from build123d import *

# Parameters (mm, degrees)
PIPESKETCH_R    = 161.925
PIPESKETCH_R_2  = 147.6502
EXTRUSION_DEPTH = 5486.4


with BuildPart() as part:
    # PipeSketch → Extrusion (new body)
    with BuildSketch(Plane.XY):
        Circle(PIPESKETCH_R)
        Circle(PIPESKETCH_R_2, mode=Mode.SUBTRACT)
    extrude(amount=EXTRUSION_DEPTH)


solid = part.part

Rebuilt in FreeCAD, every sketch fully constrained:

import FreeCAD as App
import Part
import Sketcher

V = App.Vector
Q = App.Units.Quantity

doc = App.newDocument("Part")
body = doc.addObject("PartDesign::Body", "Body")

# Sketch on XY plane
sketch1 = body.newObject("Sketcher::SketchObject", "Sketch")
sketch1.AttachmentSupport = (doc.getObject("XY_Plane"), [""])
sketch1.MapMode = "FlatFace"
sketch1.addGeometry(Part.Circle(V(0, 0, 0), V(0, 0, 1), 162), False)
sketch1.addGeometry(Part.Circle(V(0, 0, 0), V(0, 0, 1), 148), False)
sketch1.addConstraint(Sketcher.Constraint("Coincident", 0, 3, -1, 1))
sketch1.addConstraint(Sketcher.Constraint("Coincident", 1, 3, -1, 1))
sketch1.addConstraint(Sketcher.Constraint("Diameter", 0, Q("12.75 in")))
sketch1.addConstraint(Sketcher.Constraint("Diameter", 1, Q("11.626 in")))
pad1 = body.newObject("PartDesign::Pad", "Pad")
pad1.Profile = sketch1
pad1.Length = Q("216 in")

doc.recompute()
